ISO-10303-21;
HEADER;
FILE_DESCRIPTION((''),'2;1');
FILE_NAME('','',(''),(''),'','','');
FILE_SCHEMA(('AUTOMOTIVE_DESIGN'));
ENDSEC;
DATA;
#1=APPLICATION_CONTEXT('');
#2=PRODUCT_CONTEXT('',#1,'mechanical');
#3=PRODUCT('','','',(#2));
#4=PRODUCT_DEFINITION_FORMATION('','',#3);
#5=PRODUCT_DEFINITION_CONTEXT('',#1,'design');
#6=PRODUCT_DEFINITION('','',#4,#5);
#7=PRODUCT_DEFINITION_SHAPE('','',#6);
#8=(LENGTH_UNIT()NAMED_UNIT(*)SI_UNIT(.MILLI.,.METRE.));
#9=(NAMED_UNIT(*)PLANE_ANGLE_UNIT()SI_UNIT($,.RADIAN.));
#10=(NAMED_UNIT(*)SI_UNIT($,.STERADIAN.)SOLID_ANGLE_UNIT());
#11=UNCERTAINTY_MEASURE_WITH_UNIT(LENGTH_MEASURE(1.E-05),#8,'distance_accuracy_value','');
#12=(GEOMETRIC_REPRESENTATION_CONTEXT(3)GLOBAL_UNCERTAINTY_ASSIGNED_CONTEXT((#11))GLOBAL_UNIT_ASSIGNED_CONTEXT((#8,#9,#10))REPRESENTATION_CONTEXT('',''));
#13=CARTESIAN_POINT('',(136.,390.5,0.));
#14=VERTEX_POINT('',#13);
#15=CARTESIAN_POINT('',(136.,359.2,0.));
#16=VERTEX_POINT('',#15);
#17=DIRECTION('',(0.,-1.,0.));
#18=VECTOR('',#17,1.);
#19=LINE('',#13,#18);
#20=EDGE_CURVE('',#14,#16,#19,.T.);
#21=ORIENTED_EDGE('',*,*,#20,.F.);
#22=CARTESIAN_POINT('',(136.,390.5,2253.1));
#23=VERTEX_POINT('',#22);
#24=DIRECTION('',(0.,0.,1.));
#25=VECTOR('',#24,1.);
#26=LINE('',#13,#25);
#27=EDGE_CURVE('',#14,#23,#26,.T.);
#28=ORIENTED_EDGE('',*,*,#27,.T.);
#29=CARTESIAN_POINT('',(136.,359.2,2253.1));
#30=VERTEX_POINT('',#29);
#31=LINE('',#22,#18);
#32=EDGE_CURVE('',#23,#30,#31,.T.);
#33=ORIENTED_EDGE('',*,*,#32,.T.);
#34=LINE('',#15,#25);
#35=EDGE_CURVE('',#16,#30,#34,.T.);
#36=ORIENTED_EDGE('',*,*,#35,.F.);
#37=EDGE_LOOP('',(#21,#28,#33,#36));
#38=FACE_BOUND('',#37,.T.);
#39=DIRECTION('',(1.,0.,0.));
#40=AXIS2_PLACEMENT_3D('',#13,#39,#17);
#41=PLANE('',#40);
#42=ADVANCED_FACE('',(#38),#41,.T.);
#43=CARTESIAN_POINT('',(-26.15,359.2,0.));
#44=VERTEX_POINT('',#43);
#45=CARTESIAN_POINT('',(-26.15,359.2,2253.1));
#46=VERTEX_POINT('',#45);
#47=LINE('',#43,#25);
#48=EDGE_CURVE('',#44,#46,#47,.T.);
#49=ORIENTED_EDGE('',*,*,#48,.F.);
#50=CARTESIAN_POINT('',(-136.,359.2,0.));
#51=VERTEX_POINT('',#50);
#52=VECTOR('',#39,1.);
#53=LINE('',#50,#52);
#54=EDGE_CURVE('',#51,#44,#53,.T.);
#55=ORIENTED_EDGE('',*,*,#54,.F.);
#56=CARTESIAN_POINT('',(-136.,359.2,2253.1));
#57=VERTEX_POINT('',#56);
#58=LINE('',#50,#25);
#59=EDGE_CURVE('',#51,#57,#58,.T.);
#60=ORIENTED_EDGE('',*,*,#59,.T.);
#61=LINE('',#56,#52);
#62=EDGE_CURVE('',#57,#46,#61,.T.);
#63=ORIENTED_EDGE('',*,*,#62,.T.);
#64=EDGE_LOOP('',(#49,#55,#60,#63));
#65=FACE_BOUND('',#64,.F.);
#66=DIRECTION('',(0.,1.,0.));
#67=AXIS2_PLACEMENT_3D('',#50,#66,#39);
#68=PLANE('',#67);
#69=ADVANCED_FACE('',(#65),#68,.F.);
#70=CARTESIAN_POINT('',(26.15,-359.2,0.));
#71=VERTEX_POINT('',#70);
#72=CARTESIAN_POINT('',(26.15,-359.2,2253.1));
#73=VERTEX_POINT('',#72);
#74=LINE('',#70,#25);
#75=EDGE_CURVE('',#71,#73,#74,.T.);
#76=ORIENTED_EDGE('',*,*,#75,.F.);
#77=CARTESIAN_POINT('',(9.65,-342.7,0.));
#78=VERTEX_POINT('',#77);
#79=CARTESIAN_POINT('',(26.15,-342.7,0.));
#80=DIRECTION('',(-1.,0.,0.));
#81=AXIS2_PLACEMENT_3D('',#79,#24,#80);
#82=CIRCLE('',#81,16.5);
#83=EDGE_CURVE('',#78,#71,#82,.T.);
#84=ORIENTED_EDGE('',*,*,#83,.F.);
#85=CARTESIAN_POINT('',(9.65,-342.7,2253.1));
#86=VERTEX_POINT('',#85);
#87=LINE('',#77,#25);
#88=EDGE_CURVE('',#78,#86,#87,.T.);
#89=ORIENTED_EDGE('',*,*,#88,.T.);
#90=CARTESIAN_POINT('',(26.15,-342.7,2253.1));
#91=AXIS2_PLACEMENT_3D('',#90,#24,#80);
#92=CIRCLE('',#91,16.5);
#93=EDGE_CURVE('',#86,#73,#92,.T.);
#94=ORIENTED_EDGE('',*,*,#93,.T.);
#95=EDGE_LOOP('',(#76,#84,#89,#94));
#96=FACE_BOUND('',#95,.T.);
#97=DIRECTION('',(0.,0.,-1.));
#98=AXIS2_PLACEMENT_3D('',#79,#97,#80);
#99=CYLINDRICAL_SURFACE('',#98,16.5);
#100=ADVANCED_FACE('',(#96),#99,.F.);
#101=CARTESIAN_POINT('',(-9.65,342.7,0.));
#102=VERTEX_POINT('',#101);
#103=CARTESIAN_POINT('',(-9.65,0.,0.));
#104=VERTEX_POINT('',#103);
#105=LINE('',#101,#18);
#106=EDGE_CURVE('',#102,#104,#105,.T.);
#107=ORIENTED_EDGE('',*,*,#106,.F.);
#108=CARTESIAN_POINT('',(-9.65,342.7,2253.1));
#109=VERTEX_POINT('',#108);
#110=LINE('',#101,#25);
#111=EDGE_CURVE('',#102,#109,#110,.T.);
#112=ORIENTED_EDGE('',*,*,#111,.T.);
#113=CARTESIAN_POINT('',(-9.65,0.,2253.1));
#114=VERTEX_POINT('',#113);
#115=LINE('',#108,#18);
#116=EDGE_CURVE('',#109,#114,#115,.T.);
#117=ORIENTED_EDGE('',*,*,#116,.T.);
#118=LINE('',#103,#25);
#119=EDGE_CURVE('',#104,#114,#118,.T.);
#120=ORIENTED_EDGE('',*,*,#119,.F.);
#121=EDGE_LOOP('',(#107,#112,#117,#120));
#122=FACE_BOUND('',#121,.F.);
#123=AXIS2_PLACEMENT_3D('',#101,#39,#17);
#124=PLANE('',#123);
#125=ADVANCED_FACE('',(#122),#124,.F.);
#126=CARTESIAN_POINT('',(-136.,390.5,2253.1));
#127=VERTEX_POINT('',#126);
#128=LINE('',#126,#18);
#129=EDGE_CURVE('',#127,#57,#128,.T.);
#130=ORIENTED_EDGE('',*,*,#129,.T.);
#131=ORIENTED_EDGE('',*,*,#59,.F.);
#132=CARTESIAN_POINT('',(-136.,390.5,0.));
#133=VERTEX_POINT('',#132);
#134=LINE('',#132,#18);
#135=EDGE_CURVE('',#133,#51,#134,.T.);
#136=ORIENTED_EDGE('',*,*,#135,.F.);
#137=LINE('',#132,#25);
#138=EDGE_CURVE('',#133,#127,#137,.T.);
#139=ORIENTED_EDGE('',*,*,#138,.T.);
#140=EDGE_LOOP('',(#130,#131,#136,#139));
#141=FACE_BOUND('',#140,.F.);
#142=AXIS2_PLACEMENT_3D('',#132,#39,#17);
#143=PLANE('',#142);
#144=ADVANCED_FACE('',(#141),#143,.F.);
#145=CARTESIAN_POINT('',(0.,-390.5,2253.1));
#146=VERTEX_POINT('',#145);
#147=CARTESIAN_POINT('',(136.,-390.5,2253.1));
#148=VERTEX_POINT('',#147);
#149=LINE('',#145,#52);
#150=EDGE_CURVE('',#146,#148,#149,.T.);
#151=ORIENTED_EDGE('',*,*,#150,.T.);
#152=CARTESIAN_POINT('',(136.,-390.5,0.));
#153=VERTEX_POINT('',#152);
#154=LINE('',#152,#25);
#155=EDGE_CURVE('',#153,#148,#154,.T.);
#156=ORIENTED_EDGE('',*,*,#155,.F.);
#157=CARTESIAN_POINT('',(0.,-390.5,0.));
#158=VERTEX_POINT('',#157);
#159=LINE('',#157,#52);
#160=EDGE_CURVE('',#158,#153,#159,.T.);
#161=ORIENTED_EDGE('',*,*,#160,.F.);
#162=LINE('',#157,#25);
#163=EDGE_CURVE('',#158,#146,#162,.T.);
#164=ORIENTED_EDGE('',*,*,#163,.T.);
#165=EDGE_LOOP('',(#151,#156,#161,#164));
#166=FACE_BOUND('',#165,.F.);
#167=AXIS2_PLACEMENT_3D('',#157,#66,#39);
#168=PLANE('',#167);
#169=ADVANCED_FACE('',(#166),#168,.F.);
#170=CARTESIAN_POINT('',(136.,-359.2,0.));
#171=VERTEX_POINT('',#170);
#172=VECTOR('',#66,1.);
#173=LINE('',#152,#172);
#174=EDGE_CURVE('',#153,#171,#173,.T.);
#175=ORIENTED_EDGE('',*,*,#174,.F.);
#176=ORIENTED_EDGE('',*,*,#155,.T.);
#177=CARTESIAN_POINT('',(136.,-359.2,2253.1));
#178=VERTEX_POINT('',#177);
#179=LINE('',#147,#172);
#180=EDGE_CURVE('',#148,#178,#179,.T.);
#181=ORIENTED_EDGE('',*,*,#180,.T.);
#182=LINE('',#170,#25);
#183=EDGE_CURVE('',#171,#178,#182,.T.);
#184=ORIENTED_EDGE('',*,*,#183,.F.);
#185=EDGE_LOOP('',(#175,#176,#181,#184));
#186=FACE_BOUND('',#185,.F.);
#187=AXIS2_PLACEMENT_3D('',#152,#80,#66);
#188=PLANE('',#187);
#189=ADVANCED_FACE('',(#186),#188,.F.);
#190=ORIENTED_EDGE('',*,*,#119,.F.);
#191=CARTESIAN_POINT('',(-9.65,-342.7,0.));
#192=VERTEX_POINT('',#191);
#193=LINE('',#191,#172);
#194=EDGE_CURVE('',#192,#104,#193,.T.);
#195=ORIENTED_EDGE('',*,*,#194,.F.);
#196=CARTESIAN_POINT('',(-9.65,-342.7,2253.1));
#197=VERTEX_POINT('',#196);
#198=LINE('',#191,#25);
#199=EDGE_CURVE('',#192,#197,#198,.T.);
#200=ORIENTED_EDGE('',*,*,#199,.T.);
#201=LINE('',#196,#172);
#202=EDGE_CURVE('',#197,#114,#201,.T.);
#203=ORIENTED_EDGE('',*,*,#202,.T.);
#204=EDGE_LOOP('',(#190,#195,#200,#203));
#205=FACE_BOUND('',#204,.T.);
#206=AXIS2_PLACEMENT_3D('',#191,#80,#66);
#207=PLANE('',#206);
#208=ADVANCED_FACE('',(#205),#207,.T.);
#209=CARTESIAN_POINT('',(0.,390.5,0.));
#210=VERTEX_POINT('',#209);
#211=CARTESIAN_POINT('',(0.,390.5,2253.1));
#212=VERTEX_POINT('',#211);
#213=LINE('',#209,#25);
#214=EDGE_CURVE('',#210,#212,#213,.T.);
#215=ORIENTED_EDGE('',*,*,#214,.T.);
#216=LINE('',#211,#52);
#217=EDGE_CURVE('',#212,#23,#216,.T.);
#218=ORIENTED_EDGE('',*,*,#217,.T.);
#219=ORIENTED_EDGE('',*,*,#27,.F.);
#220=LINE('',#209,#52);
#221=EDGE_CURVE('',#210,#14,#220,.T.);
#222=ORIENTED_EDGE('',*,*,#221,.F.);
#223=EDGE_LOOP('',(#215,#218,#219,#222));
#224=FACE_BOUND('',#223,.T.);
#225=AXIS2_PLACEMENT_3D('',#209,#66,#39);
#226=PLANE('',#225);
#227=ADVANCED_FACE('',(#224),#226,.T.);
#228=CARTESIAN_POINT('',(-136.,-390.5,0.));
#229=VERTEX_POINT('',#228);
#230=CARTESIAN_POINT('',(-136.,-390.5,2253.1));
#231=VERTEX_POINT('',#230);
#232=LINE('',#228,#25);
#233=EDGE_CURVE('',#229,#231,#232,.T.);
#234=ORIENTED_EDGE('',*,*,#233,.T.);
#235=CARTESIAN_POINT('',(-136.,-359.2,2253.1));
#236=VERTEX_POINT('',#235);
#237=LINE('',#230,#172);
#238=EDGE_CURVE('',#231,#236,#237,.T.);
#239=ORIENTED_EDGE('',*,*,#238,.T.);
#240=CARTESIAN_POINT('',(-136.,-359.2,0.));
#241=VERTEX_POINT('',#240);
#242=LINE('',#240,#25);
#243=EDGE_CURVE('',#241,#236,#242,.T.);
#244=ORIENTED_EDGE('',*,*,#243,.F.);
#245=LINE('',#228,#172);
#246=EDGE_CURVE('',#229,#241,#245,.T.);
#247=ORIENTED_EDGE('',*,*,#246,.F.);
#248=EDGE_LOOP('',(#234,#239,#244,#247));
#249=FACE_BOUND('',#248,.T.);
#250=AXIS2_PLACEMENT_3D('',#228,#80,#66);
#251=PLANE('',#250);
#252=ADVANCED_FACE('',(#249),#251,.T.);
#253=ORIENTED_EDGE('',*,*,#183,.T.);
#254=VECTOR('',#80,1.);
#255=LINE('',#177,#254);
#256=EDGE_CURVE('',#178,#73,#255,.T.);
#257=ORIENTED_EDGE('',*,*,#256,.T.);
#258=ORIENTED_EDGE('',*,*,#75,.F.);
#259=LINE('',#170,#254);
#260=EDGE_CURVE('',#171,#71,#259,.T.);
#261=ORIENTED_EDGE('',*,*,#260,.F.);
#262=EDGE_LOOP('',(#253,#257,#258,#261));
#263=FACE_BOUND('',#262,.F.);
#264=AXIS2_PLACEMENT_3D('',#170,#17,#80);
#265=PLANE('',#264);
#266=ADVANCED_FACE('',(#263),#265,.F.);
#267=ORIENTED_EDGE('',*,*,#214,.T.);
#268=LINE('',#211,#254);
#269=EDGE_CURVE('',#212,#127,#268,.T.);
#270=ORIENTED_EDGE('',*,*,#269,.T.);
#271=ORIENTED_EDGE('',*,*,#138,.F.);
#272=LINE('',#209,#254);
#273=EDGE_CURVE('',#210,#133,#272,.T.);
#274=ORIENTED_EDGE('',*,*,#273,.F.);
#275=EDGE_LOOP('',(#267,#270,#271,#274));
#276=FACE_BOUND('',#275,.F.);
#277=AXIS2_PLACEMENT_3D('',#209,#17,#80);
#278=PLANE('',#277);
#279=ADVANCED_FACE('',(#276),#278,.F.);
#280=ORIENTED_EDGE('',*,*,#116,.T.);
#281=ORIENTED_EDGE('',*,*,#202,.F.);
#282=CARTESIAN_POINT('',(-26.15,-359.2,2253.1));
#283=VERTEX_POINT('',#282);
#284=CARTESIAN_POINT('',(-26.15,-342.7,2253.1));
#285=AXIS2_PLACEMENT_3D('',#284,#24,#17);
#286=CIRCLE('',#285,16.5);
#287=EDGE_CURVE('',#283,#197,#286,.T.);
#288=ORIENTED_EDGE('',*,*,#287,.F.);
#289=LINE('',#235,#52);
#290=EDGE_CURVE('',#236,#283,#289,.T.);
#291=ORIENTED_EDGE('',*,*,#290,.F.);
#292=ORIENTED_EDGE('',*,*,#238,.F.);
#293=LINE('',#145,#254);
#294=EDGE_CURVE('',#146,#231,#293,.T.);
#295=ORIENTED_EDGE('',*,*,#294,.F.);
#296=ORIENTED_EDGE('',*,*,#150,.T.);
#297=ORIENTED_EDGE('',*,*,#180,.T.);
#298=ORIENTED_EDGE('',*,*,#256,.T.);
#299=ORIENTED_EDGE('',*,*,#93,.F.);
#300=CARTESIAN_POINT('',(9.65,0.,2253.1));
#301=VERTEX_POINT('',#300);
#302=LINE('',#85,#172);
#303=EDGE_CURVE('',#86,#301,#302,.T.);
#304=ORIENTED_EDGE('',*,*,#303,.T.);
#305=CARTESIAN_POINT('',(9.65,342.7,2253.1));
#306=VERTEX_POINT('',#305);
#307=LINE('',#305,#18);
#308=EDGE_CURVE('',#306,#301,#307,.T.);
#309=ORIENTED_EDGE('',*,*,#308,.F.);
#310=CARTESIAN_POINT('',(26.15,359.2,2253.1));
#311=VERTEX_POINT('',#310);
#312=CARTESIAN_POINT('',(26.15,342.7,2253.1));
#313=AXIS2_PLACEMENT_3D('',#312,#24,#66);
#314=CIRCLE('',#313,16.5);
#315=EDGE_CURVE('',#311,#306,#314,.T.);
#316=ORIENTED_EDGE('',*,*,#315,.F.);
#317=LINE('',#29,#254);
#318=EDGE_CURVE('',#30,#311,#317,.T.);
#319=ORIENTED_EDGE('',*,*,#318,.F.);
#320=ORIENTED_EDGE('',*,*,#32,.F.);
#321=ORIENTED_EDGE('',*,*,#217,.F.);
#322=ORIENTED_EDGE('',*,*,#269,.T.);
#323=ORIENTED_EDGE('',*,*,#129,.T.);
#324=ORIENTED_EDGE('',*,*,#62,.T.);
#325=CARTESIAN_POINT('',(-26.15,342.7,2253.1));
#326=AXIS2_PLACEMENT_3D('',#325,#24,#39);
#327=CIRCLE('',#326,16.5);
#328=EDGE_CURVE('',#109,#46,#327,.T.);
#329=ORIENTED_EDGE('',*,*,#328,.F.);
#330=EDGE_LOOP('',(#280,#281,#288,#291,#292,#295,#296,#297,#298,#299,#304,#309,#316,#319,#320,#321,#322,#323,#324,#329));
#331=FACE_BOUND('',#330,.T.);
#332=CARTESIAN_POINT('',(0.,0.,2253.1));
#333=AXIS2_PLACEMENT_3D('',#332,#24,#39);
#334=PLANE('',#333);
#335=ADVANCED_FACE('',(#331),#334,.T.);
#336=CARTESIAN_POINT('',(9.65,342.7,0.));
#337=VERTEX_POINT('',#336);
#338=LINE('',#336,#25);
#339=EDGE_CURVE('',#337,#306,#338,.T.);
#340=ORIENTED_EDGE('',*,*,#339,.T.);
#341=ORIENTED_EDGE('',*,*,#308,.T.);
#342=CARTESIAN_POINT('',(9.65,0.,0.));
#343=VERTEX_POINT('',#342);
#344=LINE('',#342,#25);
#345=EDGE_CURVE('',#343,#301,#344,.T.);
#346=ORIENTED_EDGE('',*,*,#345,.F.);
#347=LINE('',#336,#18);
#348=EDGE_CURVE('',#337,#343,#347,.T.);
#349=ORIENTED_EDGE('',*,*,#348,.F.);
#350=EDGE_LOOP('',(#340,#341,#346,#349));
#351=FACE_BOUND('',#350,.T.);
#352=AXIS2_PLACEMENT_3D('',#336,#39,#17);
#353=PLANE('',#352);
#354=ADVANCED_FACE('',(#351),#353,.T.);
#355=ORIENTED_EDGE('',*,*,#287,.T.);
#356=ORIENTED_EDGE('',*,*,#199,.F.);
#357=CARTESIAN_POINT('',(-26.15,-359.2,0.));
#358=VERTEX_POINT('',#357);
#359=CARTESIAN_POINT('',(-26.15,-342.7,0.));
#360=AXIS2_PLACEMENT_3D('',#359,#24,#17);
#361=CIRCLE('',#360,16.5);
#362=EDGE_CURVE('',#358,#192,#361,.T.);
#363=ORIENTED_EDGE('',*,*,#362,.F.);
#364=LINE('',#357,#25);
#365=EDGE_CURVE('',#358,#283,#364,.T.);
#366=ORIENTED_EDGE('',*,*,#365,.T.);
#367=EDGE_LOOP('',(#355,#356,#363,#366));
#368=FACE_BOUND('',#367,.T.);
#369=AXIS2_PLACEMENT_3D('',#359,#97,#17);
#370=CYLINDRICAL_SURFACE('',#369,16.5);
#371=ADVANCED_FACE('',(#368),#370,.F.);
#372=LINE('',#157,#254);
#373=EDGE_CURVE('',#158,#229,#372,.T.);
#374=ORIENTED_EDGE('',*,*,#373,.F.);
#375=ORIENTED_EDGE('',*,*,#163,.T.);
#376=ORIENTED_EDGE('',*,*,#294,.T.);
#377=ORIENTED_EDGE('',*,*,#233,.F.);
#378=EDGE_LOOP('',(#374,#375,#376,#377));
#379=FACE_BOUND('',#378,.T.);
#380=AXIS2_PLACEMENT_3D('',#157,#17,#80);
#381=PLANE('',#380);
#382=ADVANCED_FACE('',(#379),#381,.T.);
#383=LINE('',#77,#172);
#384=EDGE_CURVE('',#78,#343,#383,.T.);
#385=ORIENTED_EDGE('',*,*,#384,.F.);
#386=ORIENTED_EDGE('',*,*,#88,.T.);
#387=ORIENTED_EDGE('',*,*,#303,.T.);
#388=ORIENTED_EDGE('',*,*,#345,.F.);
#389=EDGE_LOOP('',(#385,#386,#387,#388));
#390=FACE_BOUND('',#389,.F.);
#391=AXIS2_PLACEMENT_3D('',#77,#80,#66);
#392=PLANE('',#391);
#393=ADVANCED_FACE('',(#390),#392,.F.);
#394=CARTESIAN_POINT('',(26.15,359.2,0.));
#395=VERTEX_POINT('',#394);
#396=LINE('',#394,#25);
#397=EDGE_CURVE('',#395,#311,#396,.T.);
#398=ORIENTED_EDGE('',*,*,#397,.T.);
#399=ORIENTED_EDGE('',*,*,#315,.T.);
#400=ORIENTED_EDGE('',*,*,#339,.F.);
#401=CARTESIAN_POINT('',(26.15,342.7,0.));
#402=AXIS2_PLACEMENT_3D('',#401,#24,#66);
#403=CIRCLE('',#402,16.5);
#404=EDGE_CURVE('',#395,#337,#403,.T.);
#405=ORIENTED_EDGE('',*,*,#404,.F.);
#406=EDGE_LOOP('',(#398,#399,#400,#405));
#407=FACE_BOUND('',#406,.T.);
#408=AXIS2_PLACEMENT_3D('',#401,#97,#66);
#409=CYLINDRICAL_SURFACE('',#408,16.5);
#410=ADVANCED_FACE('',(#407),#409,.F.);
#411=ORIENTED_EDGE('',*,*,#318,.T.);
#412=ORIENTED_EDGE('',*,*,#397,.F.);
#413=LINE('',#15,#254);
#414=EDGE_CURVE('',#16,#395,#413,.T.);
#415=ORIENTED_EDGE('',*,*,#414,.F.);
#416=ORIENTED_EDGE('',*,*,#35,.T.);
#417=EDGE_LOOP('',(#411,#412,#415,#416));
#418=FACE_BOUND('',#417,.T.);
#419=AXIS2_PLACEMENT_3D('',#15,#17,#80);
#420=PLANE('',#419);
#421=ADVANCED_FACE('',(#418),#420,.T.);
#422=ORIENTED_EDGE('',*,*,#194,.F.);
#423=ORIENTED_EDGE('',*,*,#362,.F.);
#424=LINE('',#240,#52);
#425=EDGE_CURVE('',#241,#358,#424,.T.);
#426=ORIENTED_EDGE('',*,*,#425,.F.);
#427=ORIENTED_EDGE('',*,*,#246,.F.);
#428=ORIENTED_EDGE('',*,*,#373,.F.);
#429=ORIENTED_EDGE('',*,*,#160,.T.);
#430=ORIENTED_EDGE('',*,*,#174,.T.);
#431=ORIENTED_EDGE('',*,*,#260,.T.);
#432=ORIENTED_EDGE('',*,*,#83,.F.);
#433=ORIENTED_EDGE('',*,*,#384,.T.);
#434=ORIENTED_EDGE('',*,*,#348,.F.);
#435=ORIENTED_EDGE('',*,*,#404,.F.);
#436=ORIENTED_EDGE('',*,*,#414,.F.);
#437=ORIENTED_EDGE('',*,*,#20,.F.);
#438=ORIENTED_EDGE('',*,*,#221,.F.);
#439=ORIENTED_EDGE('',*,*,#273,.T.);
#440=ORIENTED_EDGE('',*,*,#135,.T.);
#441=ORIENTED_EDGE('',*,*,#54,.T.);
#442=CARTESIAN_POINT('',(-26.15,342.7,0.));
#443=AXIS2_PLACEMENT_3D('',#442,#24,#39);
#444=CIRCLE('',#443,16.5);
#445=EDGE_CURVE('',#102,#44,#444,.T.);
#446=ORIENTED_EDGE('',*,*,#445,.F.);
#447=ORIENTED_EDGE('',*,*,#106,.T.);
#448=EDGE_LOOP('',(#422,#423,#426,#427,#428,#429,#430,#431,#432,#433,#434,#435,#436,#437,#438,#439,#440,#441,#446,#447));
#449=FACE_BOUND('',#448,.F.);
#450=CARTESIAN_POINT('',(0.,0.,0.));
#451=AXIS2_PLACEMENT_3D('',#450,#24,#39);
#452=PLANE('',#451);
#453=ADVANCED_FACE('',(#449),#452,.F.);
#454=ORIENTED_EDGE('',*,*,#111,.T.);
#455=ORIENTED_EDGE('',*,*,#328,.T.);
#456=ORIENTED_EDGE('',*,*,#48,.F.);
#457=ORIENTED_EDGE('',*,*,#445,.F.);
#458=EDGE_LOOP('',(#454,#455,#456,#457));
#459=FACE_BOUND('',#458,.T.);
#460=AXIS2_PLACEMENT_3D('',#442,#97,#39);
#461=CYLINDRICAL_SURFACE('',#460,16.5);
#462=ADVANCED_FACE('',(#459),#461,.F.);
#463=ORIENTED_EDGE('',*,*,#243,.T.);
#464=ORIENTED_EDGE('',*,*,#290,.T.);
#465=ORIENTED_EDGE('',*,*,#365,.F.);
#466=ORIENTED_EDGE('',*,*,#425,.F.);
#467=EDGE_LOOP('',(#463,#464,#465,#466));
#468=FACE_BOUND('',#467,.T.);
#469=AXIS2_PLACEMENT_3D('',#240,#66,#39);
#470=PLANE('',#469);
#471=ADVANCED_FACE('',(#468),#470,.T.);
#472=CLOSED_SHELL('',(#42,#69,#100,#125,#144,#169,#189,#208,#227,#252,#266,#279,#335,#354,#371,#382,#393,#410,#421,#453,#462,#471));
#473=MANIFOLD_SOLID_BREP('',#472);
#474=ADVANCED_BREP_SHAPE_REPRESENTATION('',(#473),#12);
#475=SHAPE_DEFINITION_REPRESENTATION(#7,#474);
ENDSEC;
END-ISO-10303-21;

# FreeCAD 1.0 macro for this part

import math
import FreeCAD as App
import Part
import Sketcher
from FreeCAD import Vector
Q = App.Units.Quantity

doc = App.newDocument("Part")
body = doc.addObject("PartDesign::Body", "Body")

# Sketch on XY plane
sketch1 = body.newObject("Sketcher::SketchObject", "Sketch")
sketch1.AttachmentSupport = (doc.getObject("XY_Plane"), [""])
sketch1.MapMode = "FlatFace"
sketch1.addGeometry([
    Part.LineSegment(Vector(-136, -359.2, 0), Vector(-136, -390.5, 0)),  # 0
    Part.LineSegment(Vector(-136, -390.5, 0), Vector(136, -390.5, 0)),  # 1
    Part.LineSegment(Vector(136, -390.5, 0), Vector(136, -359.2, 0)),  # 2
    Part.LineSegment(Vector(136, -359.2, 0), Vector(26.15, -359.2, 0)),  # 3
    Part.ArcOfCircle(Part.Circle(Vector(26.15, -342.7, 0), Vector(0, 0, 1), 16.5), math.radians(180), math.radians(270)),  # 4
    Part.LineSegment(Vector(9.65, -342.7, 0), Vector(9.65, 342.7, 0)),  # 5
    Part.ArcOfCircle(Part.Circle(Vector(26.15, 342.7, 0), Vector(0, 0, 1), 16.5), math.radians(90), math.radians(180)),  # 6
    Part.LineSegment(Vector(26.15, 359.2, 0), Vector(136, 359.2, 0)),  # 7
    Part.LineSegment(Vector(136, 359.2, 0), Vector(136, 390.5, 0)),  # 8
    Part.LineSegment(Vector(136, 390.5, 0), Vector(-136, 390.5, 0)),  # 9
    Part.LineSegment(Vector(-136, 390.5, 0), Vector(-136, 359.2, 0)),  # 10
    Part.LineSegment(Vector(-136, 359.2, 0), Vector(-26.15, 359.2, 0)),  # 11
    Part.ArcOfCircle(Part.Circle(Vector(-26.15, 342.7, 0), Vector(0, 0, 1), 16.5), math.radians(0), math.radians(90)),  # 12
    Part.LineSegment(Vector(-9.65, 342.7, 0), Vector(-9.65, -342.7, 0)),  # 13
    Part.ArcOfCircle(Part.Circle(Vector(-26.15, -342.7, 0), Vector(0, 0, 1), 16.5), math.radians(-90), math.radians(0)),  # 14
    Part.LineSegment(Vector(-26.15, -359.2, 0), Vector(-136, -359.2, 0)),  # 15
], False)
sketch1.addConstraint([
    Sketcher.Constraint("Coincident", 0, 2, 1, 1),
    Sketcher.Constraint("Coincident", 1, 2, 2, 1),
    Sketcher.Constraint("Coincident", 2, 2, 3, 1),
    Sketcher.Constraint("Tangent", 3, 2, 4, 2),
    Sketcher.Constraint("Tangent", 4, 1, 5, 1),
    Sketcher.Constraint("Tangent", 5, 2, 6, 2),
    Sketcher.Constraint("Tangent", 6, 1, 7, 1),
    Sketcher.Constraint("Coincident", 7, 2, 8, 1),
    Sketcher.Constraint("Coincident", 8, 2, 9, 1),
    Sketcher.Constraint("Coincident", 9, 2, 10, 1),
    Sketcher.Constraint("Coincident", 10, 2, 11, 1),
    Sketcher.Constraint("Tangent", 11, 2, 12, 2),
    Sketcher.Constraint("Tangent", 12, 1, 13, 1),
    Sketcher.Constraint("Tangent", 13, 2, 14, 2),
    Sketcher.Constraint("Tangent", 14, 1, 15, 1),
    Sketcher.Constraint("Coincident", 15, 2, 0, 1),
    Sketcher.Constraint("Vertical", 0),
    Sketcher.Constraint("Horizontal", 1),
    Sketcher.Constraint("Vertical", 2),
    Sketcher.Constraint("Horizontal", 3),
    Sketcher.Constraint("Vertical", 5),
    Sketcher.Constraint("Horizontal", 7),
    Sketcher.Constraint("Vertical", 8),
    Sketcher.Constraint("Horizontal", 9),
    Sketcher.Constraint("Vertical", 10),
    Sketcher.Constraint("Horizontal", 11),
    Sketcher.Constraint("Vertical", 13),
    Sketcher.Constraint("Horizontal", 15),
    Sketcher.Constraint("Equal", 4, 6),
    Sketcher.Constraint("Equal", 6, 12),
    Sketcher.Constraint("Equal", 12, 14),
    Sketcher.Constraint("Symmetric", 4, 3, 12, 3, -1, 1),
    Sketcher.Constraint("Symmetric", 0, 2, 8, 2, -1, 1),
    Sketcher.Constraint("Symmetric", 7, 2, 10, 2, -2),
    Sketcher.Constraint("Symmetric", 2, 2, 15, 2, -2),
    Sketcher.Constraint("Radius", 4, Q("16.5 mm")),
    Sketcher.Constraint("DistanceY", 0, 2, 0, 1, Q("31.3 mm")),
    Sketcher.Constraint("DistanceX", 0, 2, -1, 1, Q("136 mm")),
    Sketcher.Constraint("DistanceY", 0, 2, -1, 1, Q("390.5 mm")),
    Sketcher.Constraint("DistanceX", -1, 1, 4, 1, Q("9.65 mm")),
])
pad1 = body.newObject("PartDesign::Pad", "Pad")
pad1.Profile = sketch1
pad1.Length = 2253.1

doc.recompute()
